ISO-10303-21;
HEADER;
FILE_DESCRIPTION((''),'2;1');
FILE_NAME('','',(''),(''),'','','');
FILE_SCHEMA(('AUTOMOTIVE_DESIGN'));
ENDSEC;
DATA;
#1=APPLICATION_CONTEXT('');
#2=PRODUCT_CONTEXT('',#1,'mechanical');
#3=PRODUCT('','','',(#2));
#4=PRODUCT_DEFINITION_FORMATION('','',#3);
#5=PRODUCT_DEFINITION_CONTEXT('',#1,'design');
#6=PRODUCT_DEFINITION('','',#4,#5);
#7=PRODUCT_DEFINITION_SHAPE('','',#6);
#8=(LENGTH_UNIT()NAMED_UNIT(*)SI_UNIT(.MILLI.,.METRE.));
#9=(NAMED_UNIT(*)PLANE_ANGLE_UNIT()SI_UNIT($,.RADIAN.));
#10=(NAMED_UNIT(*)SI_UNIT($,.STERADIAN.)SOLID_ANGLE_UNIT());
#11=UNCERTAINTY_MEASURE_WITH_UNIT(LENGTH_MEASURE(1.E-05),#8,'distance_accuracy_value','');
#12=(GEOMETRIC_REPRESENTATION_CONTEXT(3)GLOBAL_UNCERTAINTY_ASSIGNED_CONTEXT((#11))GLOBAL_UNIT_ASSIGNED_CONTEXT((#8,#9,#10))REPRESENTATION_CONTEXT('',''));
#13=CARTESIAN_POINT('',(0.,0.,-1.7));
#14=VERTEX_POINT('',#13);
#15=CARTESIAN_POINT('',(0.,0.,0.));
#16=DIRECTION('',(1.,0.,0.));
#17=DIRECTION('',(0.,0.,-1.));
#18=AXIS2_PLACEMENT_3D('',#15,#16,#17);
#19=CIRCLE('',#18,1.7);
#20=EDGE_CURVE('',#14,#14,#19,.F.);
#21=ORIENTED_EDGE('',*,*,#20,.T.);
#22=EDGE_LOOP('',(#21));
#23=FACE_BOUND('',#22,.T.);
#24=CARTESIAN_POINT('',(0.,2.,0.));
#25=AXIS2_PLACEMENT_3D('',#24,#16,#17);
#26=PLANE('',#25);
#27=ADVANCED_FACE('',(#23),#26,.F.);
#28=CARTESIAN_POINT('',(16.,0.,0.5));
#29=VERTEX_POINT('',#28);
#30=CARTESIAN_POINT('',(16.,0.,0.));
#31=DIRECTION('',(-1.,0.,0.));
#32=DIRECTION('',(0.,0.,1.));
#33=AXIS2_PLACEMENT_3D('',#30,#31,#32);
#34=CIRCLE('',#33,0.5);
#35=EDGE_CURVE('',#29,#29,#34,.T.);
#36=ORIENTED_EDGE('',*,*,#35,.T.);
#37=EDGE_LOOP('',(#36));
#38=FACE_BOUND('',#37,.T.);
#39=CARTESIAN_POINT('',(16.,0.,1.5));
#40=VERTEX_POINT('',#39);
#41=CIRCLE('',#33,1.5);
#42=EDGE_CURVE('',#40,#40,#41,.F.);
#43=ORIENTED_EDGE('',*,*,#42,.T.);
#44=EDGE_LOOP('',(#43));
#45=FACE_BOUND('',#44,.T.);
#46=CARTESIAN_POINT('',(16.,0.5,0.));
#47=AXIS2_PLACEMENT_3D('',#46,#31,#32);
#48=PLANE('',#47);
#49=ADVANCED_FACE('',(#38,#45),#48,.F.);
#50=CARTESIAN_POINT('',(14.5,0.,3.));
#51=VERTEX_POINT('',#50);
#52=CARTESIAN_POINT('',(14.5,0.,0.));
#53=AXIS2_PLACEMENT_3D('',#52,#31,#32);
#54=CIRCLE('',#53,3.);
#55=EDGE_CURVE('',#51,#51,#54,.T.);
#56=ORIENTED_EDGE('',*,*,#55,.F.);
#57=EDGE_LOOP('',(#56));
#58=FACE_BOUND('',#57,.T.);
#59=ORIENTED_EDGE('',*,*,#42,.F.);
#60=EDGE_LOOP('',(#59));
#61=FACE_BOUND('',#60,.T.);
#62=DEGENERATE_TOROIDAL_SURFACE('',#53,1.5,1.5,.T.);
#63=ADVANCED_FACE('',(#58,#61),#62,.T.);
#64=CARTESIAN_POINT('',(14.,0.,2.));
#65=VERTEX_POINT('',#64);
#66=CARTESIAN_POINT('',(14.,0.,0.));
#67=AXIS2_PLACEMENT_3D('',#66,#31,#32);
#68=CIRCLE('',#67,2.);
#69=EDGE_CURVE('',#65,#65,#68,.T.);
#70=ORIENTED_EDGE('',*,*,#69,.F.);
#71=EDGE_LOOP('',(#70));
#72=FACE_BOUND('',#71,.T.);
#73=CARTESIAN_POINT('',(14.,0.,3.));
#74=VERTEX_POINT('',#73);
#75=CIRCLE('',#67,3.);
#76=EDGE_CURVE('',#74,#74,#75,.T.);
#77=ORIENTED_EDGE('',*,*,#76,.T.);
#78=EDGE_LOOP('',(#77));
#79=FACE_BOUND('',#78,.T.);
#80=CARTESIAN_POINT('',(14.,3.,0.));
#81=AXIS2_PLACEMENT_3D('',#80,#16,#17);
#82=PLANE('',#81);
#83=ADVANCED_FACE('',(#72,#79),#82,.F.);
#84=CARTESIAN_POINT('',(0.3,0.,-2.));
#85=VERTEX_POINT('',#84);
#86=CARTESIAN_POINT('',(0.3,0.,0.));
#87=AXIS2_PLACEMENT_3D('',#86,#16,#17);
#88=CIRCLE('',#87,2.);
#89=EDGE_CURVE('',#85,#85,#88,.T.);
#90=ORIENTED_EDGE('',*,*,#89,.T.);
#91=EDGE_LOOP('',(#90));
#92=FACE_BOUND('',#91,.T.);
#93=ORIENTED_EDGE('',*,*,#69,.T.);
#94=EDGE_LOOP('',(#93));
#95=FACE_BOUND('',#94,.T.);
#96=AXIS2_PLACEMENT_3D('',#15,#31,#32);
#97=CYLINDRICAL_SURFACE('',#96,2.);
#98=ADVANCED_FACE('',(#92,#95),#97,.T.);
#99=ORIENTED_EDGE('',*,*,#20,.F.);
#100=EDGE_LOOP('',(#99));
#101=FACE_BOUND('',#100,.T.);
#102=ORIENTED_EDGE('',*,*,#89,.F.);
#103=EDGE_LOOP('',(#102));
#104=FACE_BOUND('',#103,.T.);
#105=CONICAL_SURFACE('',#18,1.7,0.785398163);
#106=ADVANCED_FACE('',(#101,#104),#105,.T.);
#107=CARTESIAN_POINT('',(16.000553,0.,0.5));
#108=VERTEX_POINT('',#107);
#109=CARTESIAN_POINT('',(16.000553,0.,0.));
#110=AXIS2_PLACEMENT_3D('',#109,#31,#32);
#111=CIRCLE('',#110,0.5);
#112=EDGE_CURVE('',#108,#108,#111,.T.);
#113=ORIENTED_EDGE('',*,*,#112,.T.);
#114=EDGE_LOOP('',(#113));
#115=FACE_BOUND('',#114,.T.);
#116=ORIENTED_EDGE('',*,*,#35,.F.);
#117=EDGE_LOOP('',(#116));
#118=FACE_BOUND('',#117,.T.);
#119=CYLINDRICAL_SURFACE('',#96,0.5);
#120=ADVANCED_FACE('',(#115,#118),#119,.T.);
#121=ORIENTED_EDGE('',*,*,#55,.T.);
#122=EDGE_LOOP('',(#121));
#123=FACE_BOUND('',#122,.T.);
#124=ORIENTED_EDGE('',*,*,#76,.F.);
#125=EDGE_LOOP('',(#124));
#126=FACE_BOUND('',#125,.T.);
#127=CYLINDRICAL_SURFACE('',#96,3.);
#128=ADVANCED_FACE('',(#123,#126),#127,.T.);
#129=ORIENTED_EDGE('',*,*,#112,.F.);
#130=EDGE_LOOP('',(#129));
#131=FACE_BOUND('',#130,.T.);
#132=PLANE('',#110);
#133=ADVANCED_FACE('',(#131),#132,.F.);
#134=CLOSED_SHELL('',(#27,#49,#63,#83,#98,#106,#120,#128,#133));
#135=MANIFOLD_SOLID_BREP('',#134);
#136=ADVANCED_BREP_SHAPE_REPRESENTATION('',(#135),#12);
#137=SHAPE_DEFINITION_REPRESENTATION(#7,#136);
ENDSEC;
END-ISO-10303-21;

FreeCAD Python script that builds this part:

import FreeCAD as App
import Part
import Sketcher
from FreeCAD import Vector
Q = App.Units.Quantity


def edges_at(feature, points):
    """Names of the edges that pass closest to the given points."""
    edges = feature.Shape.Edges
    near = lambda p: min(range(len(edges)), key=lambda i: edges[i].distToShape(Part.Vertex(*p))[0])
    return sorted({f"Edge{near(p) + 1}" for p in points})

doc = App.newDocument("Part")
body = doc.addObject("PartDesign::Body", "Body")

sketch1 = body.newObject("Sketcher::SketchObject", "Sketch")
sketch1.AttachmentSupport = (doc.getObject("XY_Plane"), [""])
sketch1.MapMode = "FlatFace"
sketch1.addGeometry(Part.LineSegment(Vector(0, 0, 0), Vector(16.000553, 0, 0)), False)
sketch1.addGeometry(Part.LineSegment(Vector(16.000553, 0, 0), Vector(16, 0.5, 0)), False)
sketch1.addGeometry(Part.LineSegment(Vector(16, 0.5, 0), Vector(16, 3, 0)), False)
sketch1.addGeometry(Part.LineSegment(Vector(16, 3, 0), Vector(14, 3, 0)), False)
sketch1.addGeometry(Part.LineSegment(Vector(14, 3, 0), Vector(14, 2, 0)), False)
sketch1.addGeometry(Part.LineSegment(Vector(14, 2, 0), Vector(0, 2, 0)), False)
sketch1.addGeometry(Part.LineSegment(Vector(0, 2, 0), Vector(0, 0, 0)), False)
sketch1.addConstraint(Sketcher.Constraint("Coincident", 0, 2, 1, 1))
sketch1.addConstraint(Sketcher.Constraint("Coincident", 1, 2, 2, 1))
sketch1.addConstraint(Sketcher.Constraint("Coincident", 2, 2, 3, 1))
sketch1.addConstraint(Sketcher.Constraint("Coincident", 3, 2, 4, 1))
sketch1.addConstraint(Sketcher.Constraint("Coincident", 4, 2, 5, 1))
sketch1.addConstraint(Sketcher.Constraint("Coincident", 5, 2, 6, 1))
sketch1.addConstraint(Sketcher.Constraint("Coincident", 6, 2, 0, 1))
sketch1.addConstraint(Sketcher.Constraint("Horizontal", 0))
sketch1.addConstraint(Sketcher.Constraint("Vertical", 2))
sketch1.addConstraint(Sketcher.Constraint("Horizontal", 3))
sketch1.addConstraint(Sketcher.Constraint("Vertical", 4))
sketch1.addConstraint(Sketcher.Constraint("Horizontal", 5))
sketch1.addConstraint(Sketcher.Constraint("Vertical", 6))
sketch1.addConstraint(Sketcher.Constraint("Coincident", 6, 2, -1, 1))
sketch1.addConstraint(Sketcher.Constraint("Equal", 3, 6))
sketch1.addConstraint(Sketcher.Constraint("DistanceX", 3, 2, 3, 1, Q("2 mm")))
sketch1.addConstraint(Sketcher.Constraint("DistanceX", 5, 2, 5, 1, Q("14 mm")))
sketch1.addConstraint(Sketcher.Constraint("DistanceY", 4, 2, 4, 1, Q("1 mm")))
sketch1.addConstraint(Sketcher.Constraint("DistanceY", 2, 1, 2, 2, Q("2.5 mm")))
sketch1.addConstraint(Sketcher.Constraint("DistanceX", 0, 1, 0, 2, Q("16.000553 mm")))
revolution = body.newObject("PartDesign::Revolution", "Revolution")
revolution.Profile = sketch1
revolution.ReferenceAxis = (sketch1, ["H_Axis"])
revolution.Angle = 360
doc.recompute()

fillet = body.newObject("PartDesign::Fillet", "Fillet")
fillet.Base = (revolution, edges_at(revolution, [(16, 0, -3)]))
fillet.Radius = 1.5
doc.recompute()

chamfer = body.newObject("PartDesign::Chamfer", "Chamfer")
chamfer.Base = (fillet, edges_at(fillet, [(0, 0, -2)]))
chamfer.Size = 0.3

doc.recompute()
